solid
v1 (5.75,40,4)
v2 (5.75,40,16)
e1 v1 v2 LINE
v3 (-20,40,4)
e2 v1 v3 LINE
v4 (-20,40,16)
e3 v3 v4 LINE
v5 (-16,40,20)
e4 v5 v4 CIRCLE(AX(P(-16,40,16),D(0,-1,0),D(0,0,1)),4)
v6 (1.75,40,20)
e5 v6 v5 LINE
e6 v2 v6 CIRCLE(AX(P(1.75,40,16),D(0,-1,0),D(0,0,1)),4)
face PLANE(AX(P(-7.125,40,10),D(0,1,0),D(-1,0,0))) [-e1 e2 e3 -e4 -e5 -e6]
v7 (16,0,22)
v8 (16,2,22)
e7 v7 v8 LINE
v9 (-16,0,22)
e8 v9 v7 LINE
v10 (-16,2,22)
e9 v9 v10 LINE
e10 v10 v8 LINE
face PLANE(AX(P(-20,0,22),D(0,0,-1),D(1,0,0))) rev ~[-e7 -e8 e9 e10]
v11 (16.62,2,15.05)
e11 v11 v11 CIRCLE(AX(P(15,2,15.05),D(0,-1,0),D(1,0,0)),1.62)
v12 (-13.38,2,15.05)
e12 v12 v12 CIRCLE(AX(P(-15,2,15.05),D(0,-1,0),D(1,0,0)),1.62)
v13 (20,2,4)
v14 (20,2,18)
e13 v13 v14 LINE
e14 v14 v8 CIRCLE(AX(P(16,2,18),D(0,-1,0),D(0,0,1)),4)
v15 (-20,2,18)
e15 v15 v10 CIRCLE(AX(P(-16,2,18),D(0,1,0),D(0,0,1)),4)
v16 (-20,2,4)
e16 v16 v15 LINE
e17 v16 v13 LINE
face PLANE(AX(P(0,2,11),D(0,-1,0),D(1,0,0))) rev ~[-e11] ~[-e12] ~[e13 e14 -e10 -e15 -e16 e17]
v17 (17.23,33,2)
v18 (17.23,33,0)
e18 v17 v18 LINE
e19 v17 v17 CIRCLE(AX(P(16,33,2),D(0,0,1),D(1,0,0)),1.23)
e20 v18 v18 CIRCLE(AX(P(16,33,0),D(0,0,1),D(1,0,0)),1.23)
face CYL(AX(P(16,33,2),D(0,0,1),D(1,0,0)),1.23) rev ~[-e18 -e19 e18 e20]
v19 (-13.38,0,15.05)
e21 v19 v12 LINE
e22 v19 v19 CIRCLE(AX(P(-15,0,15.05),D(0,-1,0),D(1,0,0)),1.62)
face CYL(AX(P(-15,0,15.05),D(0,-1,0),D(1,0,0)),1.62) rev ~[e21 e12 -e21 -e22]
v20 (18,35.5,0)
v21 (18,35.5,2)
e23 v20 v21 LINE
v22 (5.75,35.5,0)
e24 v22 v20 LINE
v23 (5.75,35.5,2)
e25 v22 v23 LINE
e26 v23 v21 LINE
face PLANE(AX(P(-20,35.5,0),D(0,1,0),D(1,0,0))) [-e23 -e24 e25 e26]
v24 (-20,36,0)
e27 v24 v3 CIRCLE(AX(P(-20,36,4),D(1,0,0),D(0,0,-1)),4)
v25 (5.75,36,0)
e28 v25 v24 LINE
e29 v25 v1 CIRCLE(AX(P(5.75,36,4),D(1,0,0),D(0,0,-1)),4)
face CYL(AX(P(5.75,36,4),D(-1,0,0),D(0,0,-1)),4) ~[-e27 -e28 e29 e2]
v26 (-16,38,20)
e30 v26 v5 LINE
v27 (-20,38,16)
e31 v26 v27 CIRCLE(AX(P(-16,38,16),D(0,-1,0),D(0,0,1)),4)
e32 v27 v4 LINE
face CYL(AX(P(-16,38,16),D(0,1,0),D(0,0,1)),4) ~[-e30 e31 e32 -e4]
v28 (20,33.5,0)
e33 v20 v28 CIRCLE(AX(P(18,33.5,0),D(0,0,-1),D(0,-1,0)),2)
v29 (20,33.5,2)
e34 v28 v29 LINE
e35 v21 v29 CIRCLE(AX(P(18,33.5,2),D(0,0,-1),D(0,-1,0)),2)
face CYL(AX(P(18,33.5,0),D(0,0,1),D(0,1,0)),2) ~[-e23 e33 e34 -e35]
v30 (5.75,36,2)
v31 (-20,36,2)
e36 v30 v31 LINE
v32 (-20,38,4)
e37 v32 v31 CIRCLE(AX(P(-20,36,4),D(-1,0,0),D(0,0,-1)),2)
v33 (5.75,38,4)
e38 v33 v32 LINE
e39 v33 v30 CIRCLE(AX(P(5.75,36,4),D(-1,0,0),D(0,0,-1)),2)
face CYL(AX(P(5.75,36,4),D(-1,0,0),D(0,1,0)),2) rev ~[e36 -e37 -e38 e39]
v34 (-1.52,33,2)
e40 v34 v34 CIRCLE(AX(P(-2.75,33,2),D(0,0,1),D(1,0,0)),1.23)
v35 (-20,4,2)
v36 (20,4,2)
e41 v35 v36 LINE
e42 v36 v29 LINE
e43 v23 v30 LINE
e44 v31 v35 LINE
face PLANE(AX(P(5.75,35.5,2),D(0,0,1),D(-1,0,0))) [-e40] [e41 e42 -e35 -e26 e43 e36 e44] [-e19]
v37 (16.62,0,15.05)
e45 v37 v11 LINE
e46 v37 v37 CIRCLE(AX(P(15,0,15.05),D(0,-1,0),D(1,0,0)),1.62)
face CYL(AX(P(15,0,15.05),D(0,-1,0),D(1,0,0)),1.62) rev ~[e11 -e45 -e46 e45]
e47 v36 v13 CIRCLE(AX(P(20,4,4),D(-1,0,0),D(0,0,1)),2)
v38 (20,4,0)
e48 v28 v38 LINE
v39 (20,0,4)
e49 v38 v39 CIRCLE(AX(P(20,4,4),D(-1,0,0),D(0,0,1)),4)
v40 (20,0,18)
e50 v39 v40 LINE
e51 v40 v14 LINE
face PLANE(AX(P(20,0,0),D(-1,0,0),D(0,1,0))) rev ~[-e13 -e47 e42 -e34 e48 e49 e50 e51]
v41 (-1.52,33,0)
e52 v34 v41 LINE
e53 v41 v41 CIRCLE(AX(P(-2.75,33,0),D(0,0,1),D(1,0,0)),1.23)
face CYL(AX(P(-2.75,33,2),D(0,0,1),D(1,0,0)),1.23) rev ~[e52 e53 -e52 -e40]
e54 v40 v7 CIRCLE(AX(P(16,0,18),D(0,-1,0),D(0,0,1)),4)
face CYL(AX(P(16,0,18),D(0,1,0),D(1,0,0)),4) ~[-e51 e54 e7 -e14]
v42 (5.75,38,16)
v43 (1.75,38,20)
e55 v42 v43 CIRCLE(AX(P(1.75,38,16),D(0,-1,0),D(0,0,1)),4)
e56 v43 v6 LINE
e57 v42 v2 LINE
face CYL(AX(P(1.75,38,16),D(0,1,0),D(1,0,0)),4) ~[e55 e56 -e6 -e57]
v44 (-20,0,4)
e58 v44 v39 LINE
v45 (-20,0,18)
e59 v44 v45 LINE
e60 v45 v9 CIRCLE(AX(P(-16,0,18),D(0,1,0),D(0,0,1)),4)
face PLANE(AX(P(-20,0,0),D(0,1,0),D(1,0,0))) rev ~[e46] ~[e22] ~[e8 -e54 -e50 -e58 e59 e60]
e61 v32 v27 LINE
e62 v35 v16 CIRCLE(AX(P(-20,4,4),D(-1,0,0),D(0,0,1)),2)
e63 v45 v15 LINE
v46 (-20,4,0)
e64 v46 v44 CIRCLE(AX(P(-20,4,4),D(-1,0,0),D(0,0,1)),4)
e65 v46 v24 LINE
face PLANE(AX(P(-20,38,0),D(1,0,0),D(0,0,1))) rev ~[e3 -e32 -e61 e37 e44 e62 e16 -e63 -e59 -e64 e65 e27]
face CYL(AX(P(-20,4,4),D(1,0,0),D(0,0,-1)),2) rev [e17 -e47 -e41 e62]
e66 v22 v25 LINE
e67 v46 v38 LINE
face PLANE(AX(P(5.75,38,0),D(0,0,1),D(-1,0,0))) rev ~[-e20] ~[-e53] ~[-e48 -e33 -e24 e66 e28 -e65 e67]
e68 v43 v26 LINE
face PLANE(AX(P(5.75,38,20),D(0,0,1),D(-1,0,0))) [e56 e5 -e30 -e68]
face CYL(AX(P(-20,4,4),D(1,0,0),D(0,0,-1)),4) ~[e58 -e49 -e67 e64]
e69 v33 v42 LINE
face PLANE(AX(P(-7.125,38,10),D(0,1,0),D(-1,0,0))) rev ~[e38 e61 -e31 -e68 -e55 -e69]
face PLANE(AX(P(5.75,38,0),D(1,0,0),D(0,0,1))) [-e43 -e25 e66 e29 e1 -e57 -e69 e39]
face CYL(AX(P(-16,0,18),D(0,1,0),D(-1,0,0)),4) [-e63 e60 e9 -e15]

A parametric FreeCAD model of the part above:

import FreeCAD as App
import Part
import Sketcher
from FreeCAD import Vector
Q = App.Units.Quantity


def edges_at(feature, points):
    """Names of the edges that pass closest to the given points."""
    edges = feature.Shape.Edges
    near = lambda p: min(range(len(edges)), key=lambda i: edges[i].distToShape(Part.Vertex(*p))[0])
    return sorted({f"Edge{near(p) + 1}" for p in points})


def add_polygon(sketch, points):
    """Adds a closed chain of lines whose ends are joined by coincident constraints."""
    first, n = sketch.GeometryCount, len(points)
    for a, b in zip(points, points[1:] + points[:1]):
        sketch.addGeometry(Part.LineSegment(App.Vector(*a, 0), App.Vector(*b, 0)), False)
    for i in range(n):
        sketch.addConstraint(Sketcher.Constraint("Coincident", first + i, 2, first + (i + 1) % n, 1))

doc = App.newDocument("Part")
params = doc.addObject("Spreadsheet::Sheet", "Params")
for row, (alias, value) in enumerate([
    ("sketch1_width", "40 mm"),
    ("sketch1_height", "35.5 mm"),
    ("pad1_length", "2 mm"),
    ("sketch2_width", "40 mm"),
    ("sketch2_height", "22 mm"),
    ("pad2_length", "2 mm"),
    ("sketch3_height", "2 mm"),
    ("sketch3_width", "25.75 mm"),
    ("pad3_length", "2.5 mm"),
    ("sketch4_height", "20 mm"),
    ("sketch4_width", "25.75 mm"),
    ("pad4_length", "2 mm"),
    ("fillet_radius", "4 mm"),
    ("fillet2_radius", "2 mm"),
    ("fillet3_radius", "4 mm"),
    ("fillet4_radius", "2 mm"),
    ("sketch5_diameter", "2.46 mm"),
    ("pocket1_length", "5 mm"),
    ("sketch6_diameter", "3.24 mm"),
    ("pocket2_length", "5 mm"),
], start=1):
    params.set(f"A{row}", alias)
    params.set(f"B{row}", "=" + value)
    params.setAlias(f"B{row}", alias)

body = doc.addObject("PartDesign::Body", "Body")

sketch1 = body.newObject("Sketcher::SketchObject", "Sketch")
sketch1.AttachmentSupport = (doc.getObject("XY_Plane"), [""])
sketch1.MapMode = "FlatFace"
add_polygon(sketch1, [(-20, 36), (-20, 0), (20, 0), (20, 36)])
sketch1.addConstraint([
    Sketcher.Constraint("Vertical", 0),
    Sketcher.Constraint("Horizontal", 1),
    Sketcher.Constraint("Vertical", 2),
    Sketcher.Constraint("Horizontal", 3),
    Sketcher.Constraint("Symmetric", 0, 2, 1, 2, -1, 1),
    Sketcher.Constraint("DistanceX", 1, 1, 1, 2, Q("40 mm")),
    Sketcher.Constraint("DistanceY", 0, 2, 0, 1, Q("35.5 mm")),
])
sketch1.setExpression("Constraints[9]", "Params.sketch1_width")
sketch1.setExpression("Constraints[10]", "Params.sketch1_height")
pad1 = body.newObject("PartDesign::Pad", "Pad")
pad1.Profile = sketch1
pad1.setExpression("Length", "Params.pad1_length")

sketch2 = body.newObject("Sketcher::SketchObject", "Sketch001")
sketch2.AttachmentSupport = (doc.getObject("XZ_Plane"), [""])
sketch2.MapMode = "FlatFace"
add_polygon(sketch2, [(-20, 22), (-20, 0), (20, 0), (20, 22)])
sketch2.addConstraint([
    Sketcher.Constraint("Vertical", 0),
    Sketcher.Constraint("Horizontal", 1),
    Sketcher.Constraint("Vertical", 2),
    Sketcher.Constraint("Horizontal", 3),
    Sketcher.Constraint("Symmetric", 0, 2, 1, 2, -1, 1),
    Sketcher.Constraint("DistanceX", 1, 1, 1, 2, Q("40 mm")),
    Sketcher.Constraint("DistanceY", 0, 2, 0, 1, Q("22 mm")),
])
sketch2.setExpression("Constraints[9]", "Params.sketch2_width")
sketch2.setExpression("Constraints[10]", "Params.sketch2_height")
pad2 = body.newObject("PartDesign::Pad", "Pad001")
pad2.Profile = sketch2
pad2.setExpression("Length", "Params.pad2_length")
pad2.Reversed = True

sketch3 = body.newObject("Sketcher::SketchObject", "Sketch002")
sketch3.AttachmentSupport = (doc.getObject("XZ_Plane"), [""])
sketch3.MapMode = "FlatFace"
sketch3.AttachmentOffset = App.Placement(Vector(0, 0, -35.5), App.Rotation())
add_polygon(sketch3, [(5.8, 2), (5.8, 0), (-20, 0), (-20, 2)])
sketch3.addConstraint([
    Sketcher.Constraint("Vertical", 0),
    Sketcher.Constraint("Horizontal", 1),
    Sketcher.Constraint("Vertical", 2),
    Sketcher.Constraint("Horizontal", 3),
    Sketcher.Constraint("PointOnObject", 0, 2, -1),
    Sketcher.Constraint("DistanceY", 0, 2, 0, 1, Q("2 mm")),
    Sketcher.Constraint("DistanceX", 1, 2, -1, 1, Q("20 mm")),
    Sketcher.Constraint("DistanceX", 1, 2, 1, 1, Q("25.75 mm")),
])
sketch3.setExpression("Constraints[9]", "Params.sketch3_height")
sketch3.setExpression("Constraints[11]", "Params.sketch3_width")
pad3 = body.newObject("PartDesign::Pad", "Pad002")
pad3.Profile = sketch3
pad3.setExpression("Length", "Params.pad3_length")
pad3.Reversed = True

sketch4 = body.newObject("Sketcher::SketchObject", "Sketch003")
sketch4.AttachmentSupport = (doc.getObject("XZ_Plane"), [""])
sketch4.MapMode = "FlatFace"
sketch4.AttachmentOffset = App.Placement(Vector(0, 0, -38), App.Rotation())
add_polygon(sketch4, [(6, 20), (6, 0), (-20, 0), (-20, 20)])
sketch4.addConstraint([
    Sketcher.Constraint("Vertical", 0),
    Sketcher.Constraint("Horizontal", 1),
    Sketcher.Constraint("Vertical", 2),
    Sketcher.Constraint("Horizontal", 3),
    Sketcher.Constraint("PointOnObject", 0, 2, -1),
    Sketcher.Constraint("DistanceY", 0, 2, 0, 1, Q("20 mm")),
    Sketcher.Constraint("DistanceX", 1, 2, -1, 1, Q("20 mm")),
    Sketcher.Constraint("DistanceX", 1, 2, 1, 1, Q("25.75 mm")),
])
sketch4.setExpression("Constraints[9]", "Params.sketch4_height")
sketch4.setExpression("Constraints[11]", "Params.sketch4_width")
pad4 = body.newObject("PartDesign::Pad", "Pad003")
pad4.Profile = sketch4
pad4.setExpression("Length", "Params.pad4_length")
pad4.Reversed = True
doc.recompute()

fillet = body.newObject("PartDesign::Fillet", "Fillet")
fillet.Base = (pad4, edges_at(pad4, [(0, 0, 0), (-7.125, 40, 0)]))
fillet.setExpression("Radius", "Params.fillet_radius")
doc.recompute()

fillet2 = body.newObject("PartDesign::Fillet", "Fillet001")
fillet2.Base = (fillet, edges_at(fillet, [(-7.125, 38, 2), (0, 2, 2)]))
fillet2.setExpression("Radius", "Params.fillet2_radius")
doc.recompute()

fillet3 = body.newObject("PartDesign::Fillet", "Fillet002")
fillet3.Base = (fillet2, edges_at(fillet2, [
    (20, 1, 22),
    (-20, 1, 22),
    (-20, 39, 20),
    (5.75, 39, 20),
]))
fillet3.setExpression("Radius", "Params.fillet3_radius")
doc.recompute()

fillet4 = body.newObject("PartDesign::Fillet", "Fillet003")
fillet4.Base = (fillet3, edges_at(fillet3, [(20, 35.5, 1)]))
fillet4.setExpression("Radius", "Params.fillet4_radius")

sketch5 = body.newObject("Sketcher::SketchObject", "Sketch004")
sketch5.AttachmentSupport = (doc.getObject("XY_Plane"), [""])
sketch5.MapMode = "FlatFace"
sketch5.AttachmentOffset = App.Placement(Vector(0, 0, 2), App.Rotation())
sketch5.addGeometry([
    Part.Circle(Vector(16, 33, 0), Vector(0, 0, 1), 1.2),
    Part.Circle(Vector(-2.8, 33, 0), Vector(0, 0, 1), 1.2),
], False)
sketch5.addConstraint([
    Sketcher.Constraint("Equal", 0, 1),
    Sketcher.Constraint("Horizontal", 0, 3, 1, 3),
    Sketcher.Constraint("Diameter", 0, Q("2.46 mm")),
    Sketcher.Constraint("DistanceX", -1, 1, 0, 3, Q("16 mm")),
    Sketcher.Constraint("DistanceY", -1, 1, 0, 3, Q("33 mm")),
    Sketcher.Constraint("DistanceX", 1, 3, -1, 1, Q("2.75 mm")),
])
sketch5.setExpression("Constraints[2]", "Params.sketch5_diameter")
pocket1 = body.newObject("PartDesign::Pocket", "Pocket")
pocket1.Profile = sketch5
pocket1.setExpression("Length", "Params.pocket1_length")

sketch6 = body.newObject("Sketcher::SketchObject", "Sketch005")
sketch6.AttachmentSupport = (doc.getObject("XZ_Plane"), [""])
sketch6.MapMode = "FlatFace"
sketch6.addGeometry([
    Part.Circle(Vector(-15, 15.1, 0), Vector(0, 0, 1), 1.6),
    Part.Circle(Vector(15, 15.1, 0), Vector(0, 0, 1), 1.6),
], False)
sketch6.addConstraint([
    Sketcher.Constraint("Equal", 0, 1),
    Sketcher.Constraint("Symmetric", 0, 3, 1, 3, -2),
    Sketcher.Constraint("Diameter", 0, Q("3.24 mm")),
    Sketcher.Constraint("DistanceX", 0, 3, -1, 1, Q("15 mm")),
    Sketcher.Constraint("DistanceY", -1, 1, 0, 3, Q("15.05 mm")),
])
sketch6.setExpression("Constraints[2]", "Params.sketch6_diameter")
pocket2 = body.newObject("PartDesign::Pocket", "Pocket001")
pocket2.Profile = sketch6
pocket2.setExpression("Length", "Params.pocket2_length")

doc.recompute()
